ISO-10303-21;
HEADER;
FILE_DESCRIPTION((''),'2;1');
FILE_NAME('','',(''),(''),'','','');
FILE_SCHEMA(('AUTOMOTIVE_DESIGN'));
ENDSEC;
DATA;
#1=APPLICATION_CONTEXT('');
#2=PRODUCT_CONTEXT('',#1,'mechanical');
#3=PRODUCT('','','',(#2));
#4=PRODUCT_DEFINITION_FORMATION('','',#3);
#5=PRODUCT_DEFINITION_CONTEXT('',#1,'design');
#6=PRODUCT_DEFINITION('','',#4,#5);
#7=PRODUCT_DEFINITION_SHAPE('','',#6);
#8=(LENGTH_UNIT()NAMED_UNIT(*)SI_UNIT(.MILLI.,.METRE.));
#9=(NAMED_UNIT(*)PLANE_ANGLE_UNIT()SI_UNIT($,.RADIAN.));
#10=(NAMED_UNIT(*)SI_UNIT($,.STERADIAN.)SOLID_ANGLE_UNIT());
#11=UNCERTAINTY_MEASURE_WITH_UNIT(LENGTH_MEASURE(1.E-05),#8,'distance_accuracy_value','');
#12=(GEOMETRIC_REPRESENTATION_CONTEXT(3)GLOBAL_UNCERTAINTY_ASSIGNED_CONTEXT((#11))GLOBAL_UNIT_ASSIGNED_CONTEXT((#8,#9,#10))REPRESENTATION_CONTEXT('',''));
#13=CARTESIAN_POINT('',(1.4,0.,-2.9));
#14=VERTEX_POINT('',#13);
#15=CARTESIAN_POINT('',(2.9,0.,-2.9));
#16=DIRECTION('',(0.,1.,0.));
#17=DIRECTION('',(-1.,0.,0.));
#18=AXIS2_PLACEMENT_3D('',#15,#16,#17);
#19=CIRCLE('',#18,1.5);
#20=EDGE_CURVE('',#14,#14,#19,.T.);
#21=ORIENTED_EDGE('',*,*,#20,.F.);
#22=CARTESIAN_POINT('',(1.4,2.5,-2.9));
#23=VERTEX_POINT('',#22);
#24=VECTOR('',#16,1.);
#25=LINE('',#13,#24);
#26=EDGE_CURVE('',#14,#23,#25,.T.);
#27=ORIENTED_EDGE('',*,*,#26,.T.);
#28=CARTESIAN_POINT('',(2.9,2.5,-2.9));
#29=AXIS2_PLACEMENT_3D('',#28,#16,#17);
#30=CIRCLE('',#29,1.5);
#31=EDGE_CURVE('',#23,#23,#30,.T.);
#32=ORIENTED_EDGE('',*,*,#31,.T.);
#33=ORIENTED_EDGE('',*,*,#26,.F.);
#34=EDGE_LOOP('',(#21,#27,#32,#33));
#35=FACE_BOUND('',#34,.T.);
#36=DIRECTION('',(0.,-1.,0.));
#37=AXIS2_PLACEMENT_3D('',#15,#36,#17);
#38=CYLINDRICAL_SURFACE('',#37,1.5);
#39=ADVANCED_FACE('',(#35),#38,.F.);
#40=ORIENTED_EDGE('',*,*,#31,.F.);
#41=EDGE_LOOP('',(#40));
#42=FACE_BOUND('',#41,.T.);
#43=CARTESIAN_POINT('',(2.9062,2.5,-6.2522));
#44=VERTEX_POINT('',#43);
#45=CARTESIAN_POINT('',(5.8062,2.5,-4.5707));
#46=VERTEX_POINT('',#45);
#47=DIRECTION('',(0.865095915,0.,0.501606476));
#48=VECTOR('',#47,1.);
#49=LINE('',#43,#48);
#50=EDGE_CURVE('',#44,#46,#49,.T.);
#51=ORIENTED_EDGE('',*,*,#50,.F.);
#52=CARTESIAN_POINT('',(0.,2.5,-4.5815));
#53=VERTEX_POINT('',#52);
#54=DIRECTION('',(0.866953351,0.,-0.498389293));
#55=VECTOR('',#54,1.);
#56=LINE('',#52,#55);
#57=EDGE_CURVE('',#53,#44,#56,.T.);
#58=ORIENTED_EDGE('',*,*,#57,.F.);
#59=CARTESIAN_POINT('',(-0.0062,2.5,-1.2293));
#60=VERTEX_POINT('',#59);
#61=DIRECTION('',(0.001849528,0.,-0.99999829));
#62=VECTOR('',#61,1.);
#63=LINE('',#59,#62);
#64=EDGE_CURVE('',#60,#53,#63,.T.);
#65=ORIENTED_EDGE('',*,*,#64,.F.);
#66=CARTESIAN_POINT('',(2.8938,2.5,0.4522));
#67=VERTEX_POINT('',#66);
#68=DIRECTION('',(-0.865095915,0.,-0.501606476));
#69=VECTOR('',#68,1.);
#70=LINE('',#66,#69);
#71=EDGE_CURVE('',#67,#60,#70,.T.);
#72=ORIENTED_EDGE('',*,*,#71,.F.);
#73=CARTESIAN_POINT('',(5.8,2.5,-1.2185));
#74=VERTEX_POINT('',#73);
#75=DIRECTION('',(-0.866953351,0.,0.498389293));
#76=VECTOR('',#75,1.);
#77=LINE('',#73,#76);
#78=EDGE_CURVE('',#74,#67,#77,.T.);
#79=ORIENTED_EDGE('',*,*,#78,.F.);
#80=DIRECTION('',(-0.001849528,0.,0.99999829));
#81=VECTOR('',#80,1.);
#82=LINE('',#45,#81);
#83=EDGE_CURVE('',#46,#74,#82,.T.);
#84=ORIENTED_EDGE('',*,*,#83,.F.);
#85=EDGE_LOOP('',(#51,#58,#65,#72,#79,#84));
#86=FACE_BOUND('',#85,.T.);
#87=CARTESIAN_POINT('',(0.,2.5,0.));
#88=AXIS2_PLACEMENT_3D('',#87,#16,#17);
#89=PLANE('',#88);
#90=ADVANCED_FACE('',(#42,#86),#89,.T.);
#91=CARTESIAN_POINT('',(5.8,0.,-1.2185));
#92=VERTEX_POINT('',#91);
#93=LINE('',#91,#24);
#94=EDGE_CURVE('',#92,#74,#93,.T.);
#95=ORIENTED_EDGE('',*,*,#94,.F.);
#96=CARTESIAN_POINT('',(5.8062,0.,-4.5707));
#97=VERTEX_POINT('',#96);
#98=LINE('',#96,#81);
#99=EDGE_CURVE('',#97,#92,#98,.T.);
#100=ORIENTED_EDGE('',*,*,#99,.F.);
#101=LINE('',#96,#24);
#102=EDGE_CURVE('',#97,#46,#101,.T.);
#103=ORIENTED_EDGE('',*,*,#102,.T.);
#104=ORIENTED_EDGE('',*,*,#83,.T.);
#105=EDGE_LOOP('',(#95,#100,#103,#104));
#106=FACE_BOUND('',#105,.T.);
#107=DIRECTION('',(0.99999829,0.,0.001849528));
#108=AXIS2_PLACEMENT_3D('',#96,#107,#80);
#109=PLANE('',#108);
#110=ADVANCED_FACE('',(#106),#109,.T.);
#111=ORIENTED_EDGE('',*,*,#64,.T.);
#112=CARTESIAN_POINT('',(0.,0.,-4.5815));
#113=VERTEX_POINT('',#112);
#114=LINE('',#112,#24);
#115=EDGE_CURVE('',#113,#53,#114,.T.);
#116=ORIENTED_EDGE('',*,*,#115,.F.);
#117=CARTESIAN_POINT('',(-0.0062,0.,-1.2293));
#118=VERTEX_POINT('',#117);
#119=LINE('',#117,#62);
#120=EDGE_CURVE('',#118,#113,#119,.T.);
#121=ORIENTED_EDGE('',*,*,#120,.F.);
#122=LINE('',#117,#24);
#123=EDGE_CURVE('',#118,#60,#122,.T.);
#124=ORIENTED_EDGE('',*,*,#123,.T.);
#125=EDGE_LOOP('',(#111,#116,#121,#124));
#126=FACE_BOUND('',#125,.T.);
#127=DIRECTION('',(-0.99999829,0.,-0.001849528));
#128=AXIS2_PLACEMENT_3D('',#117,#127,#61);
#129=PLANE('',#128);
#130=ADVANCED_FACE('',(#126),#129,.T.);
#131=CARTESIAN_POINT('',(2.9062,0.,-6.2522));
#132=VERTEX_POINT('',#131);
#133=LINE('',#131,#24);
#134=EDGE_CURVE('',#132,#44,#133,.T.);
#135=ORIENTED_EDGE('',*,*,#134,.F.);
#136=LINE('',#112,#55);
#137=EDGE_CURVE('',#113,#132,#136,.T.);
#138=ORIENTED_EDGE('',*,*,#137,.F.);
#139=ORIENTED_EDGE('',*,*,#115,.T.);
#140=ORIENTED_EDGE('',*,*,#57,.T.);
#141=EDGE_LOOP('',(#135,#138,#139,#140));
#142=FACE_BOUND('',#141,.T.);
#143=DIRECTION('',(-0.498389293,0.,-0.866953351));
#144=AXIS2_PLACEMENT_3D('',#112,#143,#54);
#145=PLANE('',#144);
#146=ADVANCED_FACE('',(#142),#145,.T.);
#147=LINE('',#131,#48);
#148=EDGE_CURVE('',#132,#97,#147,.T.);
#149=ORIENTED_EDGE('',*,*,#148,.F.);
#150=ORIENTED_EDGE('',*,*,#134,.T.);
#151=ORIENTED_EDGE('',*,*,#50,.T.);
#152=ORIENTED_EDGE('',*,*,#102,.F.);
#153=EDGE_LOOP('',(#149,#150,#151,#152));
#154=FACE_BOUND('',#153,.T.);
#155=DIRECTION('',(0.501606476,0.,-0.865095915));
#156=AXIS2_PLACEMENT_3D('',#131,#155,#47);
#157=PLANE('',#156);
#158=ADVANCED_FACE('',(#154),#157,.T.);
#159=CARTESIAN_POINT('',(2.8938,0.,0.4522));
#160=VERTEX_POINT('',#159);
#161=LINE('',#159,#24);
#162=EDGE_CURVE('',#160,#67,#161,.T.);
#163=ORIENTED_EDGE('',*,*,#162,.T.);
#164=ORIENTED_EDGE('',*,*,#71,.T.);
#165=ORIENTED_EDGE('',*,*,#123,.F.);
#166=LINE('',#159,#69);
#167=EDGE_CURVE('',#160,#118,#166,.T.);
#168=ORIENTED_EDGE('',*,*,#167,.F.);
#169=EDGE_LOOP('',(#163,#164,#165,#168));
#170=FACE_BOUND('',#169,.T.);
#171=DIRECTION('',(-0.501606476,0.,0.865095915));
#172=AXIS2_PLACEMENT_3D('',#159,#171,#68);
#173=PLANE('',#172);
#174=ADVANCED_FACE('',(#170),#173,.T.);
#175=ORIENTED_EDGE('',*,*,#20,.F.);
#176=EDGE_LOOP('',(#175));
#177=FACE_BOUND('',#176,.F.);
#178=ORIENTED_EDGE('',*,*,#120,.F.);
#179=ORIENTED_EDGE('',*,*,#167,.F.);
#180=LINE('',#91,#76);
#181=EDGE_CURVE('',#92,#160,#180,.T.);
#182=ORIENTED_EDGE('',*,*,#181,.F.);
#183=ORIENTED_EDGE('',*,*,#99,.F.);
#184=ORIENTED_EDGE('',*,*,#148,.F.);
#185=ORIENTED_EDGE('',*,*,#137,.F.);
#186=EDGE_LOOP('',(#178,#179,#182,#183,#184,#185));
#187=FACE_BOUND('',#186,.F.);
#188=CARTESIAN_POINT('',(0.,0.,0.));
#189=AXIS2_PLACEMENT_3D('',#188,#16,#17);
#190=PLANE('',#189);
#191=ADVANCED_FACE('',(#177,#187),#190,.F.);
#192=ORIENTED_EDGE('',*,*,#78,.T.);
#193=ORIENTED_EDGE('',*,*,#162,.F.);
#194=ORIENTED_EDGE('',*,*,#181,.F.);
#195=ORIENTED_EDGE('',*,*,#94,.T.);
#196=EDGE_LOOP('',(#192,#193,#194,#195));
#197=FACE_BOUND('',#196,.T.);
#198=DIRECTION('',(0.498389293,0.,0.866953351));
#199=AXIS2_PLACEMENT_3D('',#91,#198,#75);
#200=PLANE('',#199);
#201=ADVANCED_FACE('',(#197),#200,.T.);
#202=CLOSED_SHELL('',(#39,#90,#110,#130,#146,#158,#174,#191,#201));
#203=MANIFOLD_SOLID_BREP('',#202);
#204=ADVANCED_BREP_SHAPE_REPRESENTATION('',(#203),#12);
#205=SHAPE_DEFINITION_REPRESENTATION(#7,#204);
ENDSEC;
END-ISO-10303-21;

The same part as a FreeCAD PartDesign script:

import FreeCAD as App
import Part
import Sketcher

V = App.Vector
Q = App.Units.Quantity

doc = App.newDocument("Part")
params = doc.addObject("Spreadsheet::Sheet", "Params")
for row, (alias, value) in enumerate([
    ("sketch1_diameter", "3 mm"),
    ("pad1_length", "2.5 mm"),
], start=1):
    params.set(f"A{row}", alias)
    params.set(f"B{row}", "=" + value)
    params.setAlias(f"B{row}", alias)

body = doc.addObject("PartDesign::Body", "Body")

sketch1 = body.newObject("Sketcher::SketchObject", "Sketch")
sketch1.AttachmentSupport = (doc.getObject("XZ_Plane"), [""])
sketch1.MapMode = "FlatFace"
sketch1.addGeometry([
    Part.LineSegment(V(2.9, -6.3, 0), V(0, -4.6, 0)),
    Part.LineSegment(V(0, -4.6, 0), V(0, -1.2, 0)),
    Part.LineSegment(V(0, -1.2, 0), V(2.9, 0.5, 0)),
    Part.LineSegment(V(2.9, 0.5, 0), V(5.8, -1.2, 0)),
    Part.LineSegment(V(5.8, -1.2, 0), V(5.8, -4.6, 0)),
    Part.LineSegment(V(5.8, -4.6, 0), V(2.9, -6.3, 0)),
    Part.Circle(V(2.9, -2.9, 0), V(0, 0, 1), 1.5),
], False)
sketch1.addConstraint([
    Sketcher.Constraint("Coincident", 0, 2, 1, 1),
    Sketcher.Constraint("Coincident", 1, 2, 2, 1),
    Sketcher.Constraint("Coincident", 2, 2, 3, 1),
    Sketcher.Constraint("Coincident", 3, 2, 4, 1),
    Sketcher.Constraint("Coincident", 4, 2, 5, 1),
    Sketcher.Constraint("Coincident", 5, 2, 0, 1),
    Sketcher.Constraint("PointOnObject", 0, 2, -2),
    Sketcher.Constraint("Parallel", 0, 3),
    Sketcher.Constraint("Parallel", 1, 4),
    Sketcher.Constraint("Parallel", 2, 5),
    Sketcher.Constraint("Equal", 0, 1),
    Sketcher.Constraint("Equal", 1, 2),
    Sketcher.Constraint("Equal", 2, 3),
    Sketcher.Constraint("Diameter", 6, Q("3 mm")),
    Sketcher.Constraint("DistanceX", -1, 1, 6, 3, Q("2.9 mm")),
    Sketcher.Constraint("DistanceY", 6, 3, -1, 1, Q("2.9 mm")),
    Sketcher.Constraint("DistanceX", -1, 1, 3, 2, Q("5.8 mm")),
    Sketcher.Constraint("DistanceX", 1, 2, 2, 2, Q("2.9 mm")),
    Sketcher.Constraint("DistanceY", 0, 2, 3, 2, Q("3.363 mm")),
    Sketcher.Constraint("DistanceY", 4, 2, 2, 2, Q("5.023 mm")),
    Sketcher.Constraint("DistanceY", 0, 2, -1, 1, Q("4.5815 mm")),
])
sketch1.setExpression("Constraints[13]", "Params.sketch1_diameter")
pad1 = body.newObject("PartDesign::Pad", "Pad")
pad1.Profile = sketch1
pad1.setExpression("Length", "Params.pad1_length")
pad1.Reversed = True

doc.recompute()
